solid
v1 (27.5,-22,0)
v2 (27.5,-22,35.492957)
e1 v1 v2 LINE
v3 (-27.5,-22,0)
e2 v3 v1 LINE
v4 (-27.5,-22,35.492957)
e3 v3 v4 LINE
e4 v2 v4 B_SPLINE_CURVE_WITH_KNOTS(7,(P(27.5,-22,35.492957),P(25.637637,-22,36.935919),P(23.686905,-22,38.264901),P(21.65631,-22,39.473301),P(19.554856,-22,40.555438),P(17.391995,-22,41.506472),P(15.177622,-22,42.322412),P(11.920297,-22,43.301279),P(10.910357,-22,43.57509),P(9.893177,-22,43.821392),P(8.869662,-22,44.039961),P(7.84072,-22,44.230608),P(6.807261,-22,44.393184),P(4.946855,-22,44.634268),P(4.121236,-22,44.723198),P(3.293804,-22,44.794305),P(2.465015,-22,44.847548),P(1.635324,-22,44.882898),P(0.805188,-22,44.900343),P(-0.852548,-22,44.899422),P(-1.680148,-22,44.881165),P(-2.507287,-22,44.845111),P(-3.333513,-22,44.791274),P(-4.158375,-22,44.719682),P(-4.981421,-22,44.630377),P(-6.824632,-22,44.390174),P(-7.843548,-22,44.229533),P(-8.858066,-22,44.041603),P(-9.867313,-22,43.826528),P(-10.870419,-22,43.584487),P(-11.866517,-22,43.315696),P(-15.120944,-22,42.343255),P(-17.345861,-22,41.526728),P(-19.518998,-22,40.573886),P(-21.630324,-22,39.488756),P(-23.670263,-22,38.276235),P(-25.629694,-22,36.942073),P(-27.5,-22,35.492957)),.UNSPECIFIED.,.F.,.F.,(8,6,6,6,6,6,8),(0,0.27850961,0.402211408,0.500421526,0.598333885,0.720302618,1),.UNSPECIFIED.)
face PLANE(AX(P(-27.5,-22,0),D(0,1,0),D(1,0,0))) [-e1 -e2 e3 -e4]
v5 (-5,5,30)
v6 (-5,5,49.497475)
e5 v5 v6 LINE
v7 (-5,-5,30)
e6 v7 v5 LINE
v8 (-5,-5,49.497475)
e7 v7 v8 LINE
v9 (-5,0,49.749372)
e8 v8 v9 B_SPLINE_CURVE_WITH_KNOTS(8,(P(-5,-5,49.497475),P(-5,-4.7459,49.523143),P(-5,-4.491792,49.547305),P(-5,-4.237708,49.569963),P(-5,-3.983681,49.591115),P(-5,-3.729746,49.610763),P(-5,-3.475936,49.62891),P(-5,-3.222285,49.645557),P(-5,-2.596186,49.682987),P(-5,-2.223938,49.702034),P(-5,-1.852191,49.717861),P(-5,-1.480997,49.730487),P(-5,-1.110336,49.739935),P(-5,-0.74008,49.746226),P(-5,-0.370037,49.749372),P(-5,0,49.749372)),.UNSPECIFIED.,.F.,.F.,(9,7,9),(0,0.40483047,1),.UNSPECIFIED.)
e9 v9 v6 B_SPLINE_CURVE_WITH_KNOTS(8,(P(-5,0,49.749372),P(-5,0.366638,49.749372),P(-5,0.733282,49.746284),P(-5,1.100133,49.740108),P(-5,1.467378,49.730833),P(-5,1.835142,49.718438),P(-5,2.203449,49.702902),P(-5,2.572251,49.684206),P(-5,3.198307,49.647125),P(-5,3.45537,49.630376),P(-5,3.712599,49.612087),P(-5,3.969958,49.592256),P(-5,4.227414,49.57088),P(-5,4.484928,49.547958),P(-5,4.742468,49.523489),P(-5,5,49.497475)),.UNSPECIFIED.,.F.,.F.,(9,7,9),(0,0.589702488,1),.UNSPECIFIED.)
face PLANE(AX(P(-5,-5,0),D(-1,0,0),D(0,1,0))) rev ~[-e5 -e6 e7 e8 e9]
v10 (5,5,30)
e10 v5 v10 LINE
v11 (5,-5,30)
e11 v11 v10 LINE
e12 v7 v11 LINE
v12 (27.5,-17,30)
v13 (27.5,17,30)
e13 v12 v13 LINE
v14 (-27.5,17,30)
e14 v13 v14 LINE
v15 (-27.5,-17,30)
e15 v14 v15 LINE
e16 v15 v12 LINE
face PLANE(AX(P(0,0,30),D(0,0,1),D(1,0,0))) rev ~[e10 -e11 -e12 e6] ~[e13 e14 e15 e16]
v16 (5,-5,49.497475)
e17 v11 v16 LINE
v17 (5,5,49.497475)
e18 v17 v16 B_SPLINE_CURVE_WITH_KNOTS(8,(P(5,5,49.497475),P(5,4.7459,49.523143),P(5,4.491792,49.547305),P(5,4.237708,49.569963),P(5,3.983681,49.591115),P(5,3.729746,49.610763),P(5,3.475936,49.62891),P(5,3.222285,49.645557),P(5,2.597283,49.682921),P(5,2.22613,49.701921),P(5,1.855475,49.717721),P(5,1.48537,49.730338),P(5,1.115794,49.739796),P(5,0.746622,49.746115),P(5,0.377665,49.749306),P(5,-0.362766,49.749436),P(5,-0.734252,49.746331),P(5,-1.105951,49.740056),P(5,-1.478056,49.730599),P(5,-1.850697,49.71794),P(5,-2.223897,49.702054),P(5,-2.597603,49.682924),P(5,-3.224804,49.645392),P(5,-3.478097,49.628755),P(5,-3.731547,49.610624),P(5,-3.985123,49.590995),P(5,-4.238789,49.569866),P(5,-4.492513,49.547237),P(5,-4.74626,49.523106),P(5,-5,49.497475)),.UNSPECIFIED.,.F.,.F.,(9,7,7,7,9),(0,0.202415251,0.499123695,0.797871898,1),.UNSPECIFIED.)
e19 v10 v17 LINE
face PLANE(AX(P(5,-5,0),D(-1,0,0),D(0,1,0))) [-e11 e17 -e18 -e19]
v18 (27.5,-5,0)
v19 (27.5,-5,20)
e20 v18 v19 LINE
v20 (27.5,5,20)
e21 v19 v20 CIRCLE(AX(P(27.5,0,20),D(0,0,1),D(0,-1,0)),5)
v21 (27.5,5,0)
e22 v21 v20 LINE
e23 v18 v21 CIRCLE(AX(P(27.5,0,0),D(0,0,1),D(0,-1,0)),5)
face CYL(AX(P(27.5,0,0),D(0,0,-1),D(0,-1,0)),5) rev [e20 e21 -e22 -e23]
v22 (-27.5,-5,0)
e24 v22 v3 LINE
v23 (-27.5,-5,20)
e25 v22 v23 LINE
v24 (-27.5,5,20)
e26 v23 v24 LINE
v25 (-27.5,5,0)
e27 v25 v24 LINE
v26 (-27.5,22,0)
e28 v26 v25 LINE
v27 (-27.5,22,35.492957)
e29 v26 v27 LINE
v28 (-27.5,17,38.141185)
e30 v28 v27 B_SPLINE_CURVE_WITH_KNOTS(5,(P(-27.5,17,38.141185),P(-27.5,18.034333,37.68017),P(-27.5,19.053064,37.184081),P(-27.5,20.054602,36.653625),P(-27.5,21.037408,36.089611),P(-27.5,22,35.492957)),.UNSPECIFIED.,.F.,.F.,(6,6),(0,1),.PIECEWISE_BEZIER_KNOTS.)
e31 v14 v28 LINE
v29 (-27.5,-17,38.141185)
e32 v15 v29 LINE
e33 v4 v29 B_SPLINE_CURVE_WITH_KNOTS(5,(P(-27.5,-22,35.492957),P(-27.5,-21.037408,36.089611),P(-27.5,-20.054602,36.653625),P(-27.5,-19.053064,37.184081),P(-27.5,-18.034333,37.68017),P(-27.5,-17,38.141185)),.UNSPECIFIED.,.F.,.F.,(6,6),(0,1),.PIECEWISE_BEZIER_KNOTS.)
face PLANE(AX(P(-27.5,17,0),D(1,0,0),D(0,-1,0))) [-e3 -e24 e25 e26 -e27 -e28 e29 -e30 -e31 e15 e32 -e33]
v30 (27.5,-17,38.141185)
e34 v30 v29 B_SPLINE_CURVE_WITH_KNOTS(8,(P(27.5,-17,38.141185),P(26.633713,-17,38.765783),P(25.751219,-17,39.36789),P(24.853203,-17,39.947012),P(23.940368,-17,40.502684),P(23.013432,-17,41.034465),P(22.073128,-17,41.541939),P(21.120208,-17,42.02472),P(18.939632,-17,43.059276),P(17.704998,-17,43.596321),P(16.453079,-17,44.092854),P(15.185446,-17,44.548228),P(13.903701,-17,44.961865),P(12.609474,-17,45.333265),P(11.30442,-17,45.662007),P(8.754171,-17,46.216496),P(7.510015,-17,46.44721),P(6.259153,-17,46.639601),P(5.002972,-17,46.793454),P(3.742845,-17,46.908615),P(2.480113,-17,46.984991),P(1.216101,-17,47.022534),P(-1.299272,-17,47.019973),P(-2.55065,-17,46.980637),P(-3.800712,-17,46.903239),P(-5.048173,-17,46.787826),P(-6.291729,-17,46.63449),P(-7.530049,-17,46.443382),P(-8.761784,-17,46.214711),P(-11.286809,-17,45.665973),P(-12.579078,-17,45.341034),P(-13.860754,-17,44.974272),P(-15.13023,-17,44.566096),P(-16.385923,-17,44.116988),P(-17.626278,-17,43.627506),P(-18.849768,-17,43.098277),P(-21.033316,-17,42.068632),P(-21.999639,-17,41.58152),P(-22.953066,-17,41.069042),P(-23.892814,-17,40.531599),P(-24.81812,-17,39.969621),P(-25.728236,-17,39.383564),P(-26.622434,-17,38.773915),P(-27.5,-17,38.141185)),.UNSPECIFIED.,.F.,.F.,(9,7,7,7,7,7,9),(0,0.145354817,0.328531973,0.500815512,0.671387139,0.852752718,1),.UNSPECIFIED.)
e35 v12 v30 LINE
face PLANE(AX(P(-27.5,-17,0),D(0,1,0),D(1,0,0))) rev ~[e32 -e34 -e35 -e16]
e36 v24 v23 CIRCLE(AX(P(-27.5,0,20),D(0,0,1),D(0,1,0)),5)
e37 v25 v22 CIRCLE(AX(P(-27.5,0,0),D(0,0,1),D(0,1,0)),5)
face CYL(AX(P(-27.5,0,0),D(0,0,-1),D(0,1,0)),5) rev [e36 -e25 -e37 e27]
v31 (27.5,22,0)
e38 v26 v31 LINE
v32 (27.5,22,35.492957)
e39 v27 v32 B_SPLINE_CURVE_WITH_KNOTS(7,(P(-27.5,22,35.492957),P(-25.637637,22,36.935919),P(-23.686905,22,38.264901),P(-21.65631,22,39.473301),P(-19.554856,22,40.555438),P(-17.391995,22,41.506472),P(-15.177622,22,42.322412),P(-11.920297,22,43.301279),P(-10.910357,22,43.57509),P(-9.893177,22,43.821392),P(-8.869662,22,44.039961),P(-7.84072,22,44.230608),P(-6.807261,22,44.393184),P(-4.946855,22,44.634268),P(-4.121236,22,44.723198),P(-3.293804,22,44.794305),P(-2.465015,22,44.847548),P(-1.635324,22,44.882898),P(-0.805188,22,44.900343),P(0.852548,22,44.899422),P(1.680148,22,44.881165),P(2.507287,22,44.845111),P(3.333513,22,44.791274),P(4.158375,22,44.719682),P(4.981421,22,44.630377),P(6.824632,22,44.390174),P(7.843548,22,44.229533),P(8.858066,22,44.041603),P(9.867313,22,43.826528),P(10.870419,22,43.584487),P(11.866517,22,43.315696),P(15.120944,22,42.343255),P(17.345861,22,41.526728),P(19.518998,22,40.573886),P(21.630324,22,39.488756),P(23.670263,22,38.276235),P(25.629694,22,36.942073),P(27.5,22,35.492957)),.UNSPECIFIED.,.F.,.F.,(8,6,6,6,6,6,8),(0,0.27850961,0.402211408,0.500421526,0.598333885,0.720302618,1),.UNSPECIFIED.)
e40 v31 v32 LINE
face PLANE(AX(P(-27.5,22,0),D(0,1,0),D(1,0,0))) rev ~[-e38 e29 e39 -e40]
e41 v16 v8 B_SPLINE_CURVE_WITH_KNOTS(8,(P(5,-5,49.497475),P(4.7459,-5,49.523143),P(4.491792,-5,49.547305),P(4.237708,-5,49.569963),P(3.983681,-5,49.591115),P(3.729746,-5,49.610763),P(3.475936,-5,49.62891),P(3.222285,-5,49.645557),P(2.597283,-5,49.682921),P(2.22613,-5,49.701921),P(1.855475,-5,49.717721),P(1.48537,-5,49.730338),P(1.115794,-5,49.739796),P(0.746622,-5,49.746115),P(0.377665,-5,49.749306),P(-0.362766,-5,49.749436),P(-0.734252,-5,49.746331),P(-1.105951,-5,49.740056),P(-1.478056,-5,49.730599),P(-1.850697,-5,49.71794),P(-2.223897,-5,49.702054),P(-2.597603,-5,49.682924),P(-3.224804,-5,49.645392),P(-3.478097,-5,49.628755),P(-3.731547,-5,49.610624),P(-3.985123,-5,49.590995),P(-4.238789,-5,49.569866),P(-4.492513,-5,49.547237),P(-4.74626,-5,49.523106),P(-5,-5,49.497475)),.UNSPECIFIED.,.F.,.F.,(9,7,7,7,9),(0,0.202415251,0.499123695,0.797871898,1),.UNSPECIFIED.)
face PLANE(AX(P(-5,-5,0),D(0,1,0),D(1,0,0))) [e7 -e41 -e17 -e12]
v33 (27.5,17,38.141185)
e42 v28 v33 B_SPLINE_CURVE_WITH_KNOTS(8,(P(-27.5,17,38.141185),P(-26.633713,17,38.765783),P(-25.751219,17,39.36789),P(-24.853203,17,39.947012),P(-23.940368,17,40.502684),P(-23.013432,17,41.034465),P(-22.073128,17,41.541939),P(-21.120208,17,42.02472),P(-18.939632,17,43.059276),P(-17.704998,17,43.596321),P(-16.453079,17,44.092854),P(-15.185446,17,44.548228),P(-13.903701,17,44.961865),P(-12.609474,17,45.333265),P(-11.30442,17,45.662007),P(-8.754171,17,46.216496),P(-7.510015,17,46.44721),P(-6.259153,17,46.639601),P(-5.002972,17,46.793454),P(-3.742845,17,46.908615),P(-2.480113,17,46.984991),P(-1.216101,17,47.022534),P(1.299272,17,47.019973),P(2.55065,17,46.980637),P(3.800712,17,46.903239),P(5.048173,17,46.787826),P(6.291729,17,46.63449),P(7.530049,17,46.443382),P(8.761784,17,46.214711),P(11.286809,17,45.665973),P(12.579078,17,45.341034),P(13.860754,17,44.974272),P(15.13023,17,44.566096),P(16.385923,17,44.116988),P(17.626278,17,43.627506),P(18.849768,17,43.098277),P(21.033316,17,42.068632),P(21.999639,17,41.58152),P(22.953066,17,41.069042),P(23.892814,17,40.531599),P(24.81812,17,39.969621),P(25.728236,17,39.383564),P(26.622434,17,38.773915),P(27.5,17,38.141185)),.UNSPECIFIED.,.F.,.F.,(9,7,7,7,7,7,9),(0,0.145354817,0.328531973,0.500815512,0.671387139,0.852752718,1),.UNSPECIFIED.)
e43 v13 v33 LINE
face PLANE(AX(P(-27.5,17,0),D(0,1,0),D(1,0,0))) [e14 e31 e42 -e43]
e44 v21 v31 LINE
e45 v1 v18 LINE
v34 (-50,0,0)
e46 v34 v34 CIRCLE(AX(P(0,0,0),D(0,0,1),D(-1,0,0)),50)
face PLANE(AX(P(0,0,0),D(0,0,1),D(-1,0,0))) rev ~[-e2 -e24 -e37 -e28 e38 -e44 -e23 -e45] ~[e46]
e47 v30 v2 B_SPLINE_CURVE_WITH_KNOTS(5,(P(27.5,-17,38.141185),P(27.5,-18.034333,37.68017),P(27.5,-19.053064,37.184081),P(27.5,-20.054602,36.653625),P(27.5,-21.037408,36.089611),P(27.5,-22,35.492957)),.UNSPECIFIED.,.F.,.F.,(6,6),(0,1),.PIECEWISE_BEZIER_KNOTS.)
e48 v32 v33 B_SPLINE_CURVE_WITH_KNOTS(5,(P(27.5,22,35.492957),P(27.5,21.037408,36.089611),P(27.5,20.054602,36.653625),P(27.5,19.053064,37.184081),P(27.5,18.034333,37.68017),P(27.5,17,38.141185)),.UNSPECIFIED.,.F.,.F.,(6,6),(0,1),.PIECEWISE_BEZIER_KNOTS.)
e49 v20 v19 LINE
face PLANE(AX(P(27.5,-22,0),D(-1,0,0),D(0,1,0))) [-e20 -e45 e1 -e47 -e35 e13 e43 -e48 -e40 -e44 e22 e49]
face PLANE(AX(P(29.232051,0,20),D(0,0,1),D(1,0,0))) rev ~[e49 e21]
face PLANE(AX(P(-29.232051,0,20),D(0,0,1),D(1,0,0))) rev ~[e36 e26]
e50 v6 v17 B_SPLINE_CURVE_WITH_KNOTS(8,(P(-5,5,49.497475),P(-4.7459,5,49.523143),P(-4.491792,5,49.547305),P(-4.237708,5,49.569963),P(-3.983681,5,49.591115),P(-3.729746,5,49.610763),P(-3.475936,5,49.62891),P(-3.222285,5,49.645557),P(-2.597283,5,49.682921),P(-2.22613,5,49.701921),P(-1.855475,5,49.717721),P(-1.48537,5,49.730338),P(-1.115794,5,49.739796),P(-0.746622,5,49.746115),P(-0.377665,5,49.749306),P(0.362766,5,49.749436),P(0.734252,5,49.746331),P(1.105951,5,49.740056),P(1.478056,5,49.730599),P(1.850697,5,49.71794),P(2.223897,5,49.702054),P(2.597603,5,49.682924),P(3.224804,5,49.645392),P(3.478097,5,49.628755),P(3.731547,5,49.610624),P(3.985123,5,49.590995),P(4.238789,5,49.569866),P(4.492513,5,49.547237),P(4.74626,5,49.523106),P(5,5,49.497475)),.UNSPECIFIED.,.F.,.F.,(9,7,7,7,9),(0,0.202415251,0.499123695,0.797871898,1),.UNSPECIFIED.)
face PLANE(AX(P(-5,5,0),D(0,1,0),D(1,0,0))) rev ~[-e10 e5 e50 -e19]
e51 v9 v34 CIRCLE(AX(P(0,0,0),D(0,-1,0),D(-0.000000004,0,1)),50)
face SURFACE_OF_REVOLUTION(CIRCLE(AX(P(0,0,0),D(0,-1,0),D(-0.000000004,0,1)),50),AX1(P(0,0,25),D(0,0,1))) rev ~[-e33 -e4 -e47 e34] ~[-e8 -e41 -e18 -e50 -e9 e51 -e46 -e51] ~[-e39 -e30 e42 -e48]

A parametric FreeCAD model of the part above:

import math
import FreeCAD as App
import Part
import Sketcher

doc = App.newDocument("Part")
body = doc.addObject("PartDesign::Body", "Body")

# Sketch on XZ plane
sketch1 = body.newObject("Sketcher::SketchObject", "Sketch")
sketch1.AttachmentSupport = (doc.getObject("XZ_Plane"), [""])
sketch1.MapMode = "FlatFace"
sketch1.addGeometry([
    Part.LineSegment(App.Vector(-50, 0, 0), App.Vector(0, 0, 0)),
    Part.LineSegment(App.Vector(0, 0, 0), App.Vector(0, 50, 0)),
    Part.ArcOfCircle(Part.Circle(App.Vector(0, 0, 0), App.Vector(0, 0, 1), 50), math.radians(90), math.radians(180)),
], False)
sketch1.addConstraint([
    Sketcher.Constraint("Coincident", 0, 2, 1, 1),
    Sketcher.Constraint("Coincident", 1, 2, 2, 1),
    Sketcher.Constraint("Coincident", 2, 2, 0, 1),
    Sketcher.Constraint("Horizontal", 0),
    Sketcher.Constraint("Vertical", 1),
    Sketcher.Constraint("Coincident", 2, 3, -1, 1),
    Sketcher.Constraint("Coincident", 0, 2, -1, 1),
    Sketcher.Constraint("Radius", 2, 50.0),
])
revolution = body.newObject("PartDesign::Revolution", "Revolution")
revolution.Profile = sketch1
revolution.ReferenceAxis = (sketch1, ["V_Axis"])
revolution.Angle = 360

# Sketch on XY plane
sketch2 = body.newObject("Sketcher::SketchObject", "Sketch001")
sketch2.AttachmentSupport = (doc.getObject("XY_Plane"), [""])
sketch2.MapMode = "FlatFace"
sketch2.addGeometry([
    Part.LineSegment(App.Vector(-27.5, -17, 0), App.Vector(-27.5, -22, 0)),  # 0
    Part.LineSegment(App.Vector(-27.5, -22, 0), App.Vector(27.5, -22, 0)),  # 1
    Part.LineSegment(App.Vector(27.5, -22, 0), App.Vector(27.5, -17, 0)),  # 2
    Part.LineSegment(App.Vector(27.5, -17, 0), App.Vector(-27.5, -17, 0)),  # 3
    Part.LineSegment(App.Vector(-27.5, 22, 0), App.Vector(-27.5, 17, 0)),  # 4
    Part.LineSegment(App.Vector(-27.5, 17, 0), App.Vector(27.5, 17, 0)),  # 5
    Part.LineSegment(App.Vector(27.5, 17, 0), App.Vector(27.5, 22, 0)),  # 6
    Part.LineSegment(App.Vector(27.5, 22, 0), App.Vector(-27.5, 22, 0)),  # 7
    Part.LineSegment(App.Vector(-5, 5, 0), App.Vector(-5, -5, 0)),  # 8
    Part.LineSegment(App.Vector(-5, -5, 0), App.Vector(5, -5, 0)),  # 9
    Part.LineSegment(App.Vector(5, -5, 0), App.Vector(5, 5, 0)),  # 10
    Part.LineSegment(App.Vector(5, 5, 0), App.Vector(-5, 5, 0)),  # 11
], False)
sketch2.addConstraint([
    Sketcher.Constraint("Coincident", 0, 2, 1, 1),
    Sketcher.Constraint("Coincident", 1, 2, 2, 1),
    Sketcher.Constraint("Coincident", 2, 2, 3, 1),
    Sketcher.Constraint("Coincident", 3, 2, 0, 1),
    Sketcher.Constraint("Coincident", 4, 2, 5, 1),
    Sketcher.Constraint("Coincident", 5, 2, 6, 1),
    Sketcher.Constraint("Coincident", 6, 2, 7, 1),
    Sketcher.Constraint("Coincident", 7, 2, 4, 1),
    Sketcher.Constraint("Coincident", 8, 2, 9, 1),
    Sketcher.Constraint("Coincident", 9, 2, 10, 1),
    Sketcher.Constraint("Coincident", 10, 2, 11, 1),
    Sketcher.Constraint("Coincident", 11, 2, 8, 1),
    Sketcher.Constraint("Vertical", 0),
    Sketcher.Constraint("Horizontal", 1),
    Sketcher.Constraint("Vertical", 2),
    Sketcher.Constraint("Horizontal", 3),
    Sketcher.Constraint("Vertical", 4),
    Sketcher.Constraint("Horizontal", 5),
    Sketcher.Constraint("Vertical", 6),
    Sketcher.Constraint("Horizontal", 7),
    Sketcher.Constraint("Vertical", 8),
    Sketcher.Constraint("Horizontal", 9),
    Sketcher.Constraint("Vertical", 10),
    Sketcher.Constraint("Horizontal", 11),
    Sketcher.Constraint("Symmetric", 2, 2, 4, 2, -1, 1),
    Sketcher.Constraint("Symmetric", 0, 2, 6, 2, -1, 1),
    Sketcher.Constraint("Symmetric", 8, 2, 10, 2, -1, 1),
    Sketcher.Constraint("Vertical", 3, 2, 4, 2),
    Sketcher.Constraint("Equal", 11, 8),
    Sketcher.Constraint("DistanceX", 1, 1, 1, 2, 55.0),
    Sketcher.Constraint("DistanceX", 9, 1, 9, 2, 10.0),
    Sketcher.Constraint("DistanceY", 0, 2, 0, 1, 5.0),
    Sketcher.Constraint("DistanceY", 0, 2, -1, 1, 22.0),
])
pocket1 = body.newObject("PartDesign::Pocket", "Pocket")
pocket1.Profile = sketch2
pocket1.Length = 100
pocket1.Reversed = True

# Sketch on XY plane
sketch3 = body.newObject("Sketcher::SketchObject", "Sketch002")
sketch3.AttachmentSupport = (doc.getObject("XY_Plane"), [""])
sketch3.MapMode = "FlatFace"
sketch3.addGeometry([
    Part.LineSegment(App.Vector(27.5, 17, 0), App.Vector(-27.5, 17, 0)),  # 0
    Part.LineSegment(App.Vector(-27.5, 17, 0), App.Vector(-27.5, -17, 0)),  # 1
    Part.LineSegment(App.Vector(-27.5, -17, 0), App.Vector(27.5, -17, 0)),  # 2
    Part.LineSegment(App.Vector(27.5, -17, 0), App.Vector(27.5, 17, 0)),  # 3
    Part.LineSegment(App.Vector(5, -5, 0), App.Vector(-5, -5, 0)),  # 4
    Part.LineSegment(App.Vector(-5, -5, 0), App.Vector(-5, 5, 0)),  # 5
    Part.LineSegment(App.Vector(-5, 5, 0), App.Vector(5, 5, 0)),  # 6
    Part.LineSegment(App.Vector(5, 5, 0), App.Vector(5, -5, 0)),  # 7
], False)
sketch3.addConstraint([
    Sketcher.Constraint("Coincident", 0, 2, 1, 1),
    Sketcher.Constraint("Coincident", 1, 2, 2, 1),
    Sketcher.Constraint("Coincident", 2, 2, 3, 1),
    Sketcher.Constraint("Coincident", 3, 2, 0, 1),
    Sketcher.Constraint("Coincident", 4, 2, 5, 1),
    Sketcher.Constraint("Coincident", 5, 2, 6, 1),
    Sketcher.Constraint("Coincident", 6, 2, 7, 1),
    Sketcher.Constraint("Coincident", 7, 2, 4, 1),
    Sketcher.Constraint("Horizontal", 0),
    Sketcher.Constraint("Vertical", 1),
    Sketcher.Constraint("Horizontal", 2),
    Sketcher.Constraint("Vertical", 3),
    Sketcher.Constraint("Horizontal", 4),
    Sketcher.Constraint("Vertical", 5),
    Sketcher.Constraint("Horizontal", 6),
    Sketcher.Constraint("Vertical", 7),
    Sketcher.Constraint("Symmetric", 0, 2, 2, 2, -1, 1),
    Sketcher.Constraint("Symmetric", 4, 2, 6, 2, -1, 1),
    Sketcher.Constraint("Equal", 6, 5),
    Sketcher.Constraint("DistanceX", 0, 2, 0, 1, 55.0),
    Sketcher.Constraint("DistanceX", 4, 2, 4, 1, 10.0),
    Sketcher.Constraint("DistanceY", 1, 2, 1, 1, 34.0),
])
pocket2 = body.newObject("PartDesign::Pocket", "Pocket001")
pocket2.Profile = sketch3
pocket2.Length = 30
pocket2.Reversed = True

# Sketch on XY plane
sketch4 = body.newObject("Sketcher::SketchObject", "Sketch003")
sketch4.AttachmentSupport = (doc.getObject("XY_Plane"), [""])
sketch4.MapMode = "FlatFace"
sketch4.addGeometry([
    Part.ArcOfCircle(Part.Circle(App.Vector(-27.5, 0, 0), App.Vector(0, 0, 1), 5), math.radians(90), math.radians(270)),
    Part.LineSegment(App.Vector(-27.5, -5, 0), App.Vector(-27.5, 5, 0)),
    Part.LineSegment(App.Vector(27.5, 5, 0), App.Vector(27.5, -5, 0)),
    Part.ArcOfCircle(Part.Circle(App.Vector(27.5, 0, 0), App.Vector(0, 0, 1), 5), math.radians(-90), math.radians(90)),
], False)
sketch4.addConstraint([
    Sketcher.Constraint("Coincident", 0, 1, 1, 2),
    Sketcher.Constraint("Coincident", 1, 1, 0, 2),
    Sketcher.Constraint("Coincident", 2, 1, 3, 2),
    Sketcher.Constraint("Coincident", 3, 1, 2, 2),
    Sketcher.Constraint("Vertical", 1),
    Sketcher.Constraint("Vertical", 2),
    Sketcher.Constraint("Equal", 0, 3),
    Sketcher.Constraint("Symmetric", 0, 3, 3, 3, -1, 1),
    Sketcher.Constraint("Symmetric", 0, 1, 2, 1, -2),
    Sketcher.Constraint("Vertical", 3, 3, 2, 1),
    Sketcher.Constraint("Radius", 0, 5.0),
    Sketcher.Constraint("DistanceX", 0, 3, 3, 3, 55.0),
])
pocket3 = body.newObject("PartDesign::Pocket", "Pocket002")
pocket3.Profile = sketch4
pocket3.Length = 20
pocket3.Reversed = True

doc.recompute()
